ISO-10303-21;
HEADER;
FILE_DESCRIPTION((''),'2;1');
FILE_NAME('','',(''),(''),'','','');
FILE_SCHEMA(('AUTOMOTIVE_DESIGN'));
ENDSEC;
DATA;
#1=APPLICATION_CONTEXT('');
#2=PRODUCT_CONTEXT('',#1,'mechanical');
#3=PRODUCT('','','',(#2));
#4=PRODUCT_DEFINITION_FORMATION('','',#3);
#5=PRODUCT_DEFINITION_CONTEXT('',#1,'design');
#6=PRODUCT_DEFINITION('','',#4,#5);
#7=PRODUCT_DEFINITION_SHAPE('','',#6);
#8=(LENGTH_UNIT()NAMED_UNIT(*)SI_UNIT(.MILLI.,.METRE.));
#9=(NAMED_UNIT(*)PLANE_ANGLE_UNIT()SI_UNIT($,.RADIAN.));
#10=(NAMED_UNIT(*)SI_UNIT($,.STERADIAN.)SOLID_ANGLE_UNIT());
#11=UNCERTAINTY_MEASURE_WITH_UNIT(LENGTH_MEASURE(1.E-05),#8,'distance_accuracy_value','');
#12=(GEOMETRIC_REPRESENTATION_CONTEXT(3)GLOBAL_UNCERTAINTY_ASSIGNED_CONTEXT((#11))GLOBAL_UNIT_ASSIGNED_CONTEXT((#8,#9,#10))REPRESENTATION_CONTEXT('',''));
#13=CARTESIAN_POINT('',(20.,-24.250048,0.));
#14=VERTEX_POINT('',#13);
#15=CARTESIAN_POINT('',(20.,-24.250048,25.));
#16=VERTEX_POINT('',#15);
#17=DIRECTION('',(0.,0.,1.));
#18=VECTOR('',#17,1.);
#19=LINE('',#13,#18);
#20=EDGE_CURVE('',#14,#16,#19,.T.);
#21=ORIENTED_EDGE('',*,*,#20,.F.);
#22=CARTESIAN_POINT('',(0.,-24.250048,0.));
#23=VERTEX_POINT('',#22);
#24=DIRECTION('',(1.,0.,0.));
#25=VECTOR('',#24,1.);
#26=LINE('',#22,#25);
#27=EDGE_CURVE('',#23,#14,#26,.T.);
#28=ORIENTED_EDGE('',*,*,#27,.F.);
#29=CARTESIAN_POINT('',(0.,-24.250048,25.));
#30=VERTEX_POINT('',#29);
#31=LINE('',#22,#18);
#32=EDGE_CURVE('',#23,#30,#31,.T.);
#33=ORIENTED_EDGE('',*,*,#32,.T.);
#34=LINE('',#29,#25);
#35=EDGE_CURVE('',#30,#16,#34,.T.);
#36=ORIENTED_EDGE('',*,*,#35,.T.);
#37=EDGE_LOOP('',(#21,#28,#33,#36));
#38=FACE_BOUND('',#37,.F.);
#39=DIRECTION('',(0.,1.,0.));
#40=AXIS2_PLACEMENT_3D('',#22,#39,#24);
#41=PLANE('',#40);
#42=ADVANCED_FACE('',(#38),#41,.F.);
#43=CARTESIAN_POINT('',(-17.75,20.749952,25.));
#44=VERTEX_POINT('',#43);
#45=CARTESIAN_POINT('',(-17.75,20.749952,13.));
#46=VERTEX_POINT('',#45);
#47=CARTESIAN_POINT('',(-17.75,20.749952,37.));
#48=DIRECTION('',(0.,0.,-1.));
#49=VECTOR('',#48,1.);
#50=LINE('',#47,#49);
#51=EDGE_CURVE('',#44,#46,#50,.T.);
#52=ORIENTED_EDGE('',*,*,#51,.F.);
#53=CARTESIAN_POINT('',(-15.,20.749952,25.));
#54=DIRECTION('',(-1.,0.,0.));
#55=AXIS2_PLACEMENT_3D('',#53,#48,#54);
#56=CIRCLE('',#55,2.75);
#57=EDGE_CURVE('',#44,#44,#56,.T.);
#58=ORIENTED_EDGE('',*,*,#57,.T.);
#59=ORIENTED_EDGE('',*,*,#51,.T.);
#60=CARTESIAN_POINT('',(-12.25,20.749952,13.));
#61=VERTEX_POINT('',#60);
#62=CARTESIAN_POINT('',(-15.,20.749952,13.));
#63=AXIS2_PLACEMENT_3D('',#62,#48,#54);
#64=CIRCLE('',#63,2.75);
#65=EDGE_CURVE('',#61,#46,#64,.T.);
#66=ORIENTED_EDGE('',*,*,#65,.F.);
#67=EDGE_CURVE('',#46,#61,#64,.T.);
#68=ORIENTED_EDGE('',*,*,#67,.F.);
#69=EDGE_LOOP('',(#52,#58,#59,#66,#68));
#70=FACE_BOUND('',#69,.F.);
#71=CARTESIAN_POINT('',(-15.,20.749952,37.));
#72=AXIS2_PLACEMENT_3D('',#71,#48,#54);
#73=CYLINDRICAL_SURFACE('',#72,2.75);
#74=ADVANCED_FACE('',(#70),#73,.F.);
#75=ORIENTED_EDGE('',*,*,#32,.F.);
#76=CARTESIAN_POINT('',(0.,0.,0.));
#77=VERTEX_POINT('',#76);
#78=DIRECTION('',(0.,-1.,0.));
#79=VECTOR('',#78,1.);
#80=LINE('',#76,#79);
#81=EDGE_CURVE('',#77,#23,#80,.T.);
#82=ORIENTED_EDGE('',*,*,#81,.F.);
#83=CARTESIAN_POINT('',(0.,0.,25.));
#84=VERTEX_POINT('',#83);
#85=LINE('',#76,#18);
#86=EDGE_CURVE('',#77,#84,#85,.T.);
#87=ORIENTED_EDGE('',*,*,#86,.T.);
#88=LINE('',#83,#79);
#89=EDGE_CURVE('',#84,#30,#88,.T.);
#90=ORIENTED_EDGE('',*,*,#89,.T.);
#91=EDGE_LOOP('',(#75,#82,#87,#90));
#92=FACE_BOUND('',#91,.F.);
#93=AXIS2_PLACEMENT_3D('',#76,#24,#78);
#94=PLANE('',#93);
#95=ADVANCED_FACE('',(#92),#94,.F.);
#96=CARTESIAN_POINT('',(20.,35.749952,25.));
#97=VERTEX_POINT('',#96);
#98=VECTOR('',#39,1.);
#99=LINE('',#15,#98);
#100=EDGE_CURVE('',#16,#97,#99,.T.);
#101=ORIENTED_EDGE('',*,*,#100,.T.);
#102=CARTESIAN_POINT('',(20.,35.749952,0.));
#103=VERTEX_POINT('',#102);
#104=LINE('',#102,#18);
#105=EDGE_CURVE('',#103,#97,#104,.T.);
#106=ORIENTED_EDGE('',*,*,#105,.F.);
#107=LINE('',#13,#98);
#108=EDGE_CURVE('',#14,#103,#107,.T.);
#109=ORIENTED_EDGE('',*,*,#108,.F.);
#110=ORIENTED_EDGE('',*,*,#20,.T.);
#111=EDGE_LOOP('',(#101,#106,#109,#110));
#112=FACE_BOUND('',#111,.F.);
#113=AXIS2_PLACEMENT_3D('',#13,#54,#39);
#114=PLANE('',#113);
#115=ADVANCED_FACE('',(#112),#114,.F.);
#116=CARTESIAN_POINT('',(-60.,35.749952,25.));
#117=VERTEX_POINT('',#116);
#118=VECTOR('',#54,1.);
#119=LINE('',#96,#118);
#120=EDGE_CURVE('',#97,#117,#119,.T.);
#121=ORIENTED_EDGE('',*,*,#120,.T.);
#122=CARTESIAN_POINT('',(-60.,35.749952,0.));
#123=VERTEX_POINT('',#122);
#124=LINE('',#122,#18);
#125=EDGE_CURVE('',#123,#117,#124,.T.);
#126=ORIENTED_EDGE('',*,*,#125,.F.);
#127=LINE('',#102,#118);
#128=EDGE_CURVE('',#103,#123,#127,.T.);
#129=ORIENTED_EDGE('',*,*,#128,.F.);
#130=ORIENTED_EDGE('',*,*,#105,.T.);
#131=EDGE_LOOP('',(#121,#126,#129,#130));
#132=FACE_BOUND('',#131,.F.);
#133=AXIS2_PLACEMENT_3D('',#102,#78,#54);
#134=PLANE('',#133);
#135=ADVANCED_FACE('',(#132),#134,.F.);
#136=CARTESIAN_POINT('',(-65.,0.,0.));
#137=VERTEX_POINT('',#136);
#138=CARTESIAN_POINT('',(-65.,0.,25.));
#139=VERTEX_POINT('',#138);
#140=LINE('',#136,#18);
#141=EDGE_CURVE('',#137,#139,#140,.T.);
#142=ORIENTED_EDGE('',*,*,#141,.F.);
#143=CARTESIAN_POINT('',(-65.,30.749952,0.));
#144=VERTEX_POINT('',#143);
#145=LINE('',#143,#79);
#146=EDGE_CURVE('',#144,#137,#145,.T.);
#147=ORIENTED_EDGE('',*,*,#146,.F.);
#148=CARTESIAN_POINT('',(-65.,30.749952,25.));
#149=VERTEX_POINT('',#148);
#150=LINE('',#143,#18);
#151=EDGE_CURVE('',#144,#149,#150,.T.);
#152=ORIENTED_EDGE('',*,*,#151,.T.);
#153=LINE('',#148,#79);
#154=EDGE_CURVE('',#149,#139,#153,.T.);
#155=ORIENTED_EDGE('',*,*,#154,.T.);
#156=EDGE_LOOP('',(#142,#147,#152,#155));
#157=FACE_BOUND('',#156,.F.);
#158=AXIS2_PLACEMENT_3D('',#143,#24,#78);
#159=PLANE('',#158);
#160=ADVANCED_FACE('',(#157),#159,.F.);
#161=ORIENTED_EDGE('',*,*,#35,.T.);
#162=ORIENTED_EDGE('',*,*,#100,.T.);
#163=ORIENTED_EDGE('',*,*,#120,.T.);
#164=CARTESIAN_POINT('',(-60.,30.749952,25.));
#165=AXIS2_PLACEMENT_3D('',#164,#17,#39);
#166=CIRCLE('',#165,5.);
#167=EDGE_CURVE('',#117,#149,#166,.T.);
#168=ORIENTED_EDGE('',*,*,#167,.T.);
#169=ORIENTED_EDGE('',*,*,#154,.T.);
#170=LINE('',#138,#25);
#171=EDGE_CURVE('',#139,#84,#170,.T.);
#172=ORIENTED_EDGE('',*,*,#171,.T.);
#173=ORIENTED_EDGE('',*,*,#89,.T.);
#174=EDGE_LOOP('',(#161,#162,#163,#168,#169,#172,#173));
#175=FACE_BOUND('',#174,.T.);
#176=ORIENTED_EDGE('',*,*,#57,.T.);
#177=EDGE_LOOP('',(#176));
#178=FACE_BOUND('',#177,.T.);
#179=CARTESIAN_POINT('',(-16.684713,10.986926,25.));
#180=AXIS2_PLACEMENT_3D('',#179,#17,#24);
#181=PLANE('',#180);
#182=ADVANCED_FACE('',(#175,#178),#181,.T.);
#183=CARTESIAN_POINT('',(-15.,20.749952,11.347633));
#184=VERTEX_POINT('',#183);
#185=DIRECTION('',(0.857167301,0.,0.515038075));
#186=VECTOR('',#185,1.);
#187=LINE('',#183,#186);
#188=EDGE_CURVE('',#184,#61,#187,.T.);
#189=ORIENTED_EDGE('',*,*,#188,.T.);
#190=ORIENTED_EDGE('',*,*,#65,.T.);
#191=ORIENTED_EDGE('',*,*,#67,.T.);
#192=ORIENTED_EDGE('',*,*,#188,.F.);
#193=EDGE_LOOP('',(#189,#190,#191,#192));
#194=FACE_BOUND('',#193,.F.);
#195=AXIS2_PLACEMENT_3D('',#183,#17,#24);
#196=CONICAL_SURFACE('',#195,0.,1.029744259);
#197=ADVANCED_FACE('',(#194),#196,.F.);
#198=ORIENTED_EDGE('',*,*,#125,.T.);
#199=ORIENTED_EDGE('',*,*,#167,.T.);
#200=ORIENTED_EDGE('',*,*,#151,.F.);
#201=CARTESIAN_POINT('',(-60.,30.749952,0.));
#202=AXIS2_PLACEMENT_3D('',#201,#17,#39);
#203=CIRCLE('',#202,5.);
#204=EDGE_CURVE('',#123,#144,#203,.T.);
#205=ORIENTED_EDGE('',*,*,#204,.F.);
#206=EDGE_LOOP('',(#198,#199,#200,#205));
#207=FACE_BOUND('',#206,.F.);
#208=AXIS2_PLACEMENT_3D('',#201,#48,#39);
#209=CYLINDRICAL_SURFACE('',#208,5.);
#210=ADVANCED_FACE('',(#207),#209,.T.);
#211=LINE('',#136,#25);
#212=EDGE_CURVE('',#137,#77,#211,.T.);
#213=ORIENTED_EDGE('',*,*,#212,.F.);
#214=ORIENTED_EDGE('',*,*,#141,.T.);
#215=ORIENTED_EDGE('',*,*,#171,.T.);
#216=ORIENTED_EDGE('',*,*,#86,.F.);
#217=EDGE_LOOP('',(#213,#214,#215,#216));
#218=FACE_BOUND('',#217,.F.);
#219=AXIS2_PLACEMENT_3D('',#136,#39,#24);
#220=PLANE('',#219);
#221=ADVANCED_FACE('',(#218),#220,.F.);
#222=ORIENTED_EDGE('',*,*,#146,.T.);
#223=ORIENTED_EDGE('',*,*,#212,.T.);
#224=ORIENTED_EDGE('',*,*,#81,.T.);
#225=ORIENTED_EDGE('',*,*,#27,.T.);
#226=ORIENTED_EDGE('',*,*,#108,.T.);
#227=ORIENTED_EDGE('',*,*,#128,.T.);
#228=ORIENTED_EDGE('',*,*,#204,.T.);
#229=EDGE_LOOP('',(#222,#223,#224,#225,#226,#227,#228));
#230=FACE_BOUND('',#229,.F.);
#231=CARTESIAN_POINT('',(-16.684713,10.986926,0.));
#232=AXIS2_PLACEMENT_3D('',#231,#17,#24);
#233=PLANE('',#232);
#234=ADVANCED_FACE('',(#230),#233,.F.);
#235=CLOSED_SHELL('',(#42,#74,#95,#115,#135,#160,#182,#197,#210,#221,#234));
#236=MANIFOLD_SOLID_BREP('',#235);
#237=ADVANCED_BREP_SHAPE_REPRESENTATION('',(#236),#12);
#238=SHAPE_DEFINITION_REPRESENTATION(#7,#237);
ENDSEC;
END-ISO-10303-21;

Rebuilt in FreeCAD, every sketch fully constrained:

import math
import FreeCAD as App
import Part
import Sketcher

V = App.Vector
Q = App.Units.Quantity

doc = App.newDocument("Part")
body = doc.addObject("PartDesign::Body", "Body")

sketch1 = body.newObject("Sketcher::SketchObject", "Sketch")
sketch1.AttachmentSupport = (doc.getObject("XY_Plane"), [""])
sketch1.MapMode = "FlatFace"
sketch1.addGeometry(Part.LineSegment(V(20, 36, 0), V(-60, 36, 0)), False)
sketch1.addGeometry(Part.ArcOfCircle(Part.Circle(V(-60, 31, 0), V(0, 0, 1), 5), math.radians(90), math.radians(180)), False)
sketch1.addGeometry(Part.LineSegment(V(-65, 31, 0), V(-65, 0, 0)), False)
sketch1.addGeometry(Part.LineSegment(V(-65, 0, 0), V(0, 0, 0)), False)
sketch1.addGeometry(Part.LineSegment(V(0, 0, 0), V(0, -24, 0)), False)
sketch1.addGeometry(Part.LineSegment(V(0, -24, 0), V(20, -24, 0)), False)
sketch1.addGeometry(Part.LineSegment(V(20, -24, 0), V(20, 36, 0)), False)
sketch1.addConstraint(Sketcher.Constraint("Tangent", 0, 2, 1, 1))
sketch1.addConstraint(Sketcher.Constraint("Tangent", 1, 2, 2, 1))
sketch1.addConstraint(Sketcher.Constraint("Coincident", 2, 2, 3, 1))
sketch1.addConstraint(Sketcher.Constraint("Coincident", 3, 2, 4, 1))
sketch1.addConstraint(Sketcher.Constraint("Coincident", 4, 2, 5, 1))
sketch1.addConstraint(Sketcher.Constraint("Coincident", 5, 2, 6, 1))
sketch1.addConstraint(Sketcher.Constraint("Coincident", 6, 2, 0, 1))
sketch1.addConstraint(Sketcher.Constraint("Horizontal", 0))
sketch1.addConstraint(Sketcher.Constraint("Vertical", 2))
sketch1.addConstraint(Sketcher.Constraint("Horizontal", 3))
sketch1.addConstraint(Sketcher.Constraint("Vertical", 4))
sketch1.addConstraint(Sketcher.Constraint("Horizontal", 5))
sketch1.addConstraint(Sketcher.Constraint("Vertical", 6))
sketch1.addConstraint(Sketcher.Constraint("Coincident", 3, 2, -1, 1))
sketch1.addConstraint(Sketcher.Constraint("Radius", 1, Q("5 mm")))
sketch1.addConstraint(Sketcher.Constraint("DistanceX", 0, 2, 0, 1, Q("80 mm")))
sketch1.addConstraint(Sketcher.Constraint("DistanceX", 3, 1, 3, 2, Q("65 mm")))
sketch1.addConstraint(Sketcher.Constraint("DistanceY", 6, 1, 6, 2, Q("60 mm")))
sketch1.addConstraint(Sketcher.Constraint("DistanceY", 2, 2, 2, 1, Q("30.749952 mm")))
pad1 = body.newObject("PartDesign::Pad", "Pad")
pad1.Profile = sketch1
pad1.Length = 25

sketch2 = body.newObject("Sketcher::SketchObject", "Sketch001")
sketch2.AttachmentSupport = (doc.getObject("XY_Plane"), [""])
sketch2.MapMode = "FlatFace"
sketch2.AttachmentOffset = App.Placement(V(0, 0, 25), App.Rotation())
sketch2.addGeometry(Part.Circle(V(-15, 20.7, 0), V(0, 0, 1), 2.8), False)
sketch2.addConstraint(Sketcher.Constraint("Diameter", 0, Q("5.5 mm")))
sketch2.addConstraint(Sketcher.Constraint("DistanceX", 0, 3, -1, 1, Q("15 mm")))
sketch2.addConstraint(Sketcher.Constraint("DistanceY", -1, 1, 0, 3, Q("20.749952 mm")))
doc.recompute()
hole = body.newObject("PartDesign::Hole", "Hole")
hole.Profile = sketch2
hole.ThreadType = "None"
hole.Diameter = 5.5
hole.DepthType = "Dimension"
hole.Depth = 12
hole.DrillPoint = "Angled"
hole.DrillPointAngle = 118

doc.recompute()
